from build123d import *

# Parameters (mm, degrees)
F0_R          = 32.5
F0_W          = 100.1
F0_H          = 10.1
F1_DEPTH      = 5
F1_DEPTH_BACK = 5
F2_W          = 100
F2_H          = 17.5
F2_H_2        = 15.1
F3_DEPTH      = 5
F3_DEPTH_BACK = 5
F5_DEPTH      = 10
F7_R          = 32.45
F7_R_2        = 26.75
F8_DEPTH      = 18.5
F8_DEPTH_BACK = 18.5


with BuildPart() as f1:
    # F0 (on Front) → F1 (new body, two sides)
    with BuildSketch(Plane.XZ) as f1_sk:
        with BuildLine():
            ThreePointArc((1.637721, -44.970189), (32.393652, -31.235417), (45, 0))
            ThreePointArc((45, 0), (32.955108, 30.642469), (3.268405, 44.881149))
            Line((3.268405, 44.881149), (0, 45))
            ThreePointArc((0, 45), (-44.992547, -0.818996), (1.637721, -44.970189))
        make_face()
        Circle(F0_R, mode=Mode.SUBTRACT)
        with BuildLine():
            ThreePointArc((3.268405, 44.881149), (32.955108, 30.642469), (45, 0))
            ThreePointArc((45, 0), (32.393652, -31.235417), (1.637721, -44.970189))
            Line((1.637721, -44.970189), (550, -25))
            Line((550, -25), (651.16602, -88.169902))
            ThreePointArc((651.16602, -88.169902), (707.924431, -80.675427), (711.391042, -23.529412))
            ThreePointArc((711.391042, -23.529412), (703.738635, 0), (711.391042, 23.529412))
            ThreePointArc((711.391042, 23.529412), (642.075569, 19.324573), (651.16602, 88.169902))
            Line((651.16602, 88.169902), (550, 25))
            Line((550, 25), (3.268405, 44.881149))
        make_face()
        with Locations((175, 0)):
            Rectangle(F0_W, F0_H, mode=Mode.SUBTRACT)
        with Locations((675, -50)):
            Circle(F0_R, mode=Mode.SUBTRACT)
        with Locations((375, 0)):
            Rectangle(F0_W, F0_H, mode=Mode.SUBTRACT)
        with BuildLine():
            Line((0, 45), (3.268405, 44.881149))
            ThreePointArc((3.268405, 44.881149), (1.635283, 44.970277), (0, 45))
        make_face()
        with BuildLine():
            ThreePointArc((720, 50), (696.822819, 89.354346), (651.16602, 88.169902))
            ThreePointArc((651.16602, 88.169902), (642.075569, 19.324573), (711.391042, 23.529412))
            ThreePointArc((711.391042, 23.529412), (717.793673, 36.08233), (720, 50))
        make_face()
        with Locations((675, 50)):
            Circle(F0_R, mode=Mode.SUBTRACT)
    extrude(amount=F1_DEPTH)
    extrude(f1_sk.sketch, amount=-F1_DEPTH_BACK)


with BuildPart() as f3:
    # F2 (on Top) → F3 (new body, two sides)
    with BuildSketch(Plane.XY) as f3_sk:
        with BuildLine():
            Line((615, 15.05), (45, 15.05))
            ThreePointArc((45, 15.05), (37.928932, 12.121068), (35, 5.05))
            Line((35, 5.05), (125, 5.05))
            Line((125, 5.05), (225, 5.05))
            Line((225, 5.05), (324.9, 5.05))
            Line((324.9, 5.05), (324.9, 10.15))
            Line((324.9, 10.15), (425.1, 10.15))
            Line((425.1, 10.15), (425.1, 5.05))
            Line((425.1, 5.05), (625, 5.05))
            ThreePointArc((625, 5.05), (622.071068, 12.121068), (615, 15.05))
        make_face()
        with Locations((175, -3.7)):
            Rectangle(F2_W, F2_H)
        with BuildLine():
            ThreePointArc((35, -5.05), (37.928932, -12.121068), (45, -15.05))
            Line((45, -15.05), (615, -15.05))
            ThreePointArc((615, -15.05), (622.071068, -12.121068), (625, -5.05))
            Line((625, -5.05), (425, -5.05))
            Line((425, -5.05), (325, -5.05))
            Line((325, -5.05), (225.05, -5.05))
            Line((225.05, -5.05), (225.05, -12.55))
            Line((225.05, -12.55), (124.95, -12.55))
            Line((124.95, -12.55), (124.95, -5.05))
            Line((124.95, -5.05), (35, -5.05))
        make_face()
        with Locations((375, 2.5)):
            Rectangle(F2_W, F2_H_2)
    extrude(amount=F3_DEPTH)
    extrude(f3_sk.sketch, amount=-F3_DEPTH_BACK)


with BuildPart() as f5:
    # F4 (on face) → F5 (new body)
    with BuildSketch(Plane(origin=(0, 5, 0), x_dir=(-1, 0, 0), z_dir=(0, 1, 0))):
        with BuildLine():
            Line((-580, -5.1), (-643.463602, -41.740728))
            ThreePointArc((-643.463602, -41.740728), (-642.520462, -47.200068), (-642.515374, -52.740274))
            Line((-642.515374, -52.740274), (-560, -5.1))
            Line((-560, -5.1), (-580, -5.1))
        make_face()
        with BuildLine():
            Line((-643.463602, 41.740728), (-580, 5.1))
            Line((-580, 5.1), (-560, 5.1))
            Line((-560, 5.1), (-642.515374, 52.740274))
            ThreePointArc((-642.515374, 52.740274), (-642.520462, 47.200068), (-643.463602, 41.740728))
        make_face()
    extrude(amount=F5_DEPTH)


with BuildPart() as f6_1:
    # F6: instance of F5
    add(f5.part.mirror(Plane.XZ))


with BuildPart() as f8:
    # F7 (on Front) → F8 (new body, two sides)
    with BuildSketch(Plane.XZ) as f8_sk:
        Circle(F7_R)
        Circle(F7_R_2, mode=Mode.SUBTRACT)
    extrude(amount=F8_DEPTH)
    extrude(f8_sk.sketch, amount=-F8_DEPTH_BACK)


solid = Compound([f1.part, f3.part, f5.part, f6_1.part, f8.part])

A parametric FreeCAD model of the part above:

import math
import FreeCAD as App
import Part
import Sketcher

V = App.Vector
Q = App.Units.Quantity


def add_polygon(sketch, points):
    """Adds a closed chain of lines whose ends are joined by coincident constraints."""
    first, n = sketch.GeometryCount, len(points)
    for a, b in zip(points, points[1:] + points[:1]):
        sketch.addGeometry(Part.LineSegment(App.Vector(*a, 0), App.Vector(*b, 0)), False)
    for i in range(n):
        sketch.addConstraint(Sketcher.Constraint("Coincident", first + i, 2, first + (i + 1) % n, 1))

doc = App.newDocument("Part")
body = doc.addObject("PartDesign::Body", "Body")

# Sketch on XZ plane
sketch1 = body.newObject("Sketcher::SketchObject", "Sketch")
sketch1.AttachmentSupport = (doc.getObject("XZ_Plane"), [""])
sketch1.MapMode = "FlatFace"
sketch1.addGeometry(Part.ArcOfCircle(Part.Circle(V(0, 0, 0), V(0, 0, 1), 45), math.radians(90), math.radians(272.085672)), False)  # 0
sketch1.addGeometry(Part.LineSegment(V(1.637721, -44.970189, 0), V(550, -25, 0)), False)  # 1
sketch1.addGeometry(Part.LineSegment(V(550, -25, 0), V(651.16602, -88.169902, 0)), False)  # 2
sketch1.addGeometry(Part.ArcOfCircle(Part.Circle(V(675, -50, 0), V(0, 0, 1), 45), math.radians(-121.981404), math.radians(36.031879)), False)  # 3
sketch1.addGeometry(Part.ArcOfCircle(Part.Circle(V(743.738635, 0, 0), V(0, 0, 1), 40), math.radians(143.968121), math.radians(216.031879)), False)  # 4
sketch1.addGeometry(Part.ArcOfCircle(Part.Circle(V(675.000001, 50, 0), V(0, 0, 1), 44.999999), math.radians(-36.03188), math.radians(0)), False)  # 5
sketch1.addGeometry(Part.ArcOfCircle(Part.Circle(V(675, 49.999999, 0), V(0, 0, 1), 45), math.radians(0.000001), math.radians(121.981403)), False)  # 6
sketch1.addGeometry(Part.LineSegment(V(651.16602, 88.169902, 0), V(550, 25, 0)), False)  # 7
sketch1.addGeometry(Part.LineSegment(V(550, 25, 0), V(3.268405, 44.881149, 0)), False)  # 8
sketch1.addGeometry(Part.ArcOfCircle(Part.Circle(V(-0.000023, -0.000663, 0), V(0, 0, 1), 45.000663), math.radians(85.834902), math.radians(89.999971)), False)  # 9
sketch1.addGeometry(Part.Circle(V(675, -50, 0), V(0, 0, 1), 32.5), False)  # 10
sketch1.addGeometry(Part.Circle(V(0, 0, 0), V(0, 0, 1), 32.5), False)  # 11
add_polygon(sketch1, [(225.05, -5.05), (124.95, -5.05), (124.95, 5.05), (225.05, 5.05)])  # lines 12-15
add_polygon(sketch1, [(425.05, -5.05), (324.95, -5.05), (324.95, 5.05), (425.05, 5.05)])  # lines 16-19
sketch1.addGeometry(Part.Circle(V(675, 50, 0), V(0, 0, 1), 32.5), False)  # 20
sketch1.addConstraint([
    Sketcher.Constraint("Coincident", 0, 2, 1, 1),
    Sketcher.Constraint("Coincident", 1, 2, 2, 1),
    Sketcher.Constraint("Coincident", 2, 2, 3, 1),
    Sketcher.Constraint("Coincident", 3, 2, 4, 2),
    Sketcher.Constraint("Coincident", 4, 1, 5, 1),
    Sketcher.Constraint("Coincident", 5, 2, 6, 1),
    Sketcher.Constraint("Coincident", 6, 2, 7, 1),
    Sketcher.Constraint("Coincident", 7, 2, 8, 1),
    Sketcher.Constraint("Coincident", 8, 2, 9, 1),
    Sketcher.Constraint("Coincident", 9, 2, 0, 1),
    Sketcher.Constraint("Horizontal", 12),
    Sketcher.Constraint("Vertical", 13),
    Sketcher.Constraint("Horizontal", 14),
    Sketcher.Constraint("Vertical", 15),
    Sketcher.Constraint("Horizontal", 16),
    Sketcher.Constraint("Vertical", 17),
    Sketcher.Constraint("Horizontal", 18),
    Sketcher.Constraint("Vertical", 19),
    Sketcher.Constraint("Coincident", 0, 3, -1, 1),
    Sketcher.Constraint("Coincident", 11, 3, -1, 1),
    Sketcher.Constraint("Coincident", 6, 3, 5, 3),
    Sketcher.Constraint("Coincident", 10, 3, 3, 3),
    Sketcher.Constraint("Coincident", 20, 3, 5, 3),
    Sketcher.Constraint("PointOnObject", 4, 3, -1),
    Sketcher.Constraint("PointOnObject", 9, 2, -2),
    Sketcher.Constraint("Diameter", 10, Q("65 mm")),
    Sketcher.Constraint("Diameter", 11, Q("65 mm")),
    Sketcher.Constraint("Diameter", 20, Q("65 mm")),
    Sketcher.Constraint("Radius", 0, Q("45 mm")),
    Sketcher.Constraint("Radius", 3, Q("45 mm")),
    Sketcher.Constraint("Radius", 4, Q("40 mm")),
    Sketcher.Constraint("Radius", 5, Q("44.999999 mm")),
    Sketcher.Constraint("DistanceX", 12, 2, 12, 1, Q("100.1 mm")),
    Sketcher.Constraint("DistanceX", 16, 2, 16, 1, Q("100.1 mm")),
    Sketcher.Constraint("DistanceY", 13, 1, 13, 2, Q("10.1 mm")),
    Sketcher.Constraint("DistanceY", 17, 1, 17, 2, Q("10.1 mm")),
    Sketcher.Constraint("DistanceX", -1, 1, 3, 3, Q("675 mm")),
    Sketcher.Constraint("DistanceY", 3, 3, -1, 1, Q("50 mm")),
    Sketcher.Constraint("DistanceX", -1, 1, 5, 3, Q("675.000001 mm")),
    Sketcher.Constraint("DistanceX", -1, 1, 1, 2, Q("550 mm")),
    Sketcher.Constraint("DistanceY", 1, 2, -1, 1, Q("25 mm")),
    Sketcher.Constraint("DistanceY", -1, 1, 5, 2, Q("50 mm")),
    Sketcher.Constraint("DistanceX", -1, 1, 7, 2, Q("550 mm")),
    Sketcher.Constraint("DistanceY", -1, 1, 7, 2, Q("25 mm")),
    Sketcher.Constraint("DistanceX", 12, 2, 16, 2, Q("200 mm")),
    Sketcher.Constraint("DistanceY", 16, 2, 14, 2, Q("10.1 mm")),
    Sketcher.Constraint("DistanceX", -1, 1, 12, 2, Q("124.95 mm")),
    Sketcher.Constraint("DistanceY", 12, 2, -1, 1, Q("5.05 mm")),
    Sketcher.Constraint("Radius", 9, Q("45.000663 mm")),
    Sketcher.Constraint("DistanceY", 2, 2, -1, 1, Q("88.169902 mm")),
    Sketcher.Constraint("DistanceY", -1, 1, 6, 2, Q("88.169902 mm")),
    Sketcher.Constraint("Distance", 8, Q("547.092951 mm")),
    Sketcher.Constraint("DistanceX", -1, 1, 0, 2, Q("1.637721 mm")),
    Sketcher.Constraint("DistanceX", -1, 1, 3, 2, Q("711.391042 mm")),
    Sketcher.Constraint("DistanceY", -1, 1, 4, 1, Q("23.529412 mm")),
    Sketcher.Constraint("DistanceY", -1, 1, 8, 2, Q("44.881149 mm")),
])
pad1 = body.newObject("PartDesign::Pad", "Pad")
pad1.Profile = sketch1
pad1.Type = "TwoLengths"
pad1.Length = 5
pad1.Length2 = 5
body2 = doc.addObject("PartDesign::Body", "Body001")
body2.AllowCompound = True

# Sketch on XY plane
sketch2 = body2.newObject("Sketcher::SketchObject", "Sketch001")
sketch2.AttachmentSupport = (doc.getObject("XY_Plane001"), [""])
sketch2.MapMode = "FlatFace"
sketch2.addGeometry([
    Part.LineSegment(V(615, 15, 0), V(45, 15, 0)),  # 0
    Part.ArcOfCircle(Part.Circle(V(45, 5, 0), V(0, 0, 1), 10), math.radians(90), math.radians(180)),  # 1
    Part.LineSegment(V(35, 5, 0), V(125, 5, 0)),  # 2
    Part.LineSegment(V(125, 5, 0), V(125, -12, 0)),  # 3
    Part.LineSegment(V(125, -12, 0), V(225, -12, 0)),  # 4
    Part.LineSegment(V(225, -12, 0), V(225, 5, 0)),  # 5
    Part.LineSegment(V(225, 5, 0), V(325, 5, 0)),  # 6
    Part.LineSegment(V(325, 5, 0), V(325, 10, 0)),  # 7
    Part.LineSegment(V(325, 10, 0), V(425, 10, 0)),  # 8
    Part.LineSegment(V(425, 10, 0), V(425, 5, 0)),  # 9
    Part.LineSegment(V(425, 5, 0), V(625, 5, 0)),  # 10
    Part.ArcOfCircle(Part.Circle(V(615, 5, 0), V(0, 0, 1), 10), math.radians(0), math.radians(90)),  # 11
    Part.ArcOfCircle(Part.Circle(V(45, -5, 0), V(0, 0, 1), 10), math.radians(180), math.radians(270)),  # 12
    Part.LineSegment(V(45, -15, 0), V(615, -15, 0)),  # 13
    Part.ArcOfCircle(Part.Circle(V(615, -5, 0), V(0, 0, 1), 10), math.radians(-90), math.radians(0)),  # 14
    Part.LineSegment(V(625, -5, 0), V(425, -5, 0)),  # 15
    Part.LineSegment(V(425, -5, 0), V(425, 10, 0)),  # 16
    Part.LineSegment(V(425, 10, 0), V(325, 10, 0)),  # 17
    Part.LineSegment(V(325, 10, 0), V(325, -5, 0)),  # 18
    Part.LineSegment(V(325, -5, 0), V(225, -5, 0)),  # 19
    Part.LineSegment(V(225, -5, 0), V(225, -13, 0)),  # 20
    Part.LineSegment(V(225, -13, 0), V(125, -13, 0)),  # 21
    Part.LineSegment(V(125, -13, 0), V(125, -5, 0)),  # 22
    Part.LineSegment(V(125, -5, 0), V(35, -5, 0)),  # 23
], False)
sketch2.addConstraint([
    Sketcher.Constraint("Tangent", 0, 2, 1, 1),
    Sketcher.Constraint("Coincident", 1, 2, 2, 1),
    Sketcher.Constraint("Coincident", 2, 2, 3, 1),
    Sketcher.Constraint("Coincident", 3, 2, 4, 1),
    Sketcher.Constraint("Coincident", 4, 2, 5, 1),
    Sketcher.Constraint("Coincident", 5, 2, 6, 1),
    Sketcher.Constraint("Coincident", 6, 2, 7, 1),
    Sketcher.Constraint("Coincident", 7, 2, 8, 1),
    Sketcher.Constraint("Coincident", 8, 2, 9, 1),
    Sketcher.Constraint("Coincident", 9, 2, 10, 1),
    Sketcher.Constraint("Coincident", 10, 2, 11, 1),
    Sketcher.Constraint("Tangent", 11, 2, 0, 1),
    Sketcher.Constraint("Tangent", 12, 2, 13, 1),
    Sketcher.Constraint("Tangent", 13, 2, 14, 1),
    Sketcher.Constraint("Coincident", 14, 2, 15, 1),
    Sketcher.Constraint("Coincident", 15, 2, 16, 1),
    Sketcher.Constraint("Coincident", 16, 2, 17, 1),
    Sketcher.Constraint("Coincident", 17, 2, 18, 1),
    Sketcher.Constraint("Coincident", 18, 2, 19, 1),
    Sketcher.Constraint("Coincident", 19, 2, 20, 1),
    Sketcher.Constraint("Coincident", 20, 2, 21, 1),
    Sketcher.Constraint("Coincident", 21, 2, 22, 1),
    Sketcher.Constraint("Coincident", 22, 2, 23, 1),
    Sketcher.Constraint("Coincident", 23, 2, 12, 1),
    Sketcher.Constraint("Horizontal", 0),
    Sketcher.Constraint("Horizontal", 2),
    Sketcher.Constraint("Vertical", 3),
    Sketcher.Constraint("Horizontal", 4),
    Sketcher.Constraint("Vertical", 5),
    Sketcher.Constraint("Horizontal", 6),
    Sketcher.Constraint("Vertical", 7),
    Sketcher.Constraint("Horizontal", 8),
    Sketcher.Constraint("Vertical", 9),
    Sketcher.Constraint("Horizontal", 10),
    Sketcher.Constraint("Horizontal", 13),
    Sketcher.Constraint("Horizontal", 15),
    Sketcher.Constraint("Vertical", 16),
    Sketcher.Constraint("Horizontal", 17),
    Sketcher.Constraint("Vertical", 18),
    Sketcher.Constraint("Horizontal", 19),
    Sketcher.Constraint("Vertical", 20),
    Sketcher.Constraint("Horizontal", 21),
    Sketcher.Constraint("Vertical", 22),
    Sketcher.Constraint("Horizontal", 23),
    Sketcher.Constraint("Equal", 1, 11),
    Sketcher.Constraint("Equal", 11, 12),
    Sketcher.Constraint("Equal", 12, 14),
    Sketcher.Constraint("Symmetric", 1, 3, 12, 3, -1),
    Sketcher.Constraint("Symmetric", 10, 2, 14, 2, -1),
    Sketcher.Constraint("Horizontal", 11, 3, 1, 2),
    Sketcher.Constraint("Horizontal", 2, 2, 5, 2),
    Sketcher.Constraint("Horizontal", 6, 2, 9, 2),
    Sketcher.Constraint("Horizontal", 15, 2, 18, 2),
    Sketcher.Constraint("Horizontal", 19, 2, 22, 2),
    Sketcher.Constraint("Equal", 4, 17),
    Sketcher.Constraint("Radius", 1, Q("9.999999 mm")),
    Sketcher.Constraint("DistanceX", 0, 2, 0, 1, Q("570 mm")),
    Sketcher.Constraint("DistanceX", 2, 1, 2, 2, Q("90 mm")),
    Sketcher.Constraint("DistanceX", 4, 1, 4, 2, Q("100 mm")),
    Sketcher.Constraint("DistanceX", 15, 2, 15, 1, Q("200 mm")),
    Sketcher.Constraint("DistanceX", 6, 1, 6, 2, Q("99.9 mm")),
    Sketcher.Constraint("DistanceX", 8, 1, 8, 2, Q("100.2 mm")),
    Sketcher.Constraint("DistanceX", 21, 2, 21, 1, Q("100.1 mm")),
    Sketcher.Constraint("DistanceY", 3, 2, 3, 1, Q("17.5 mm")),
    Sketcher.Constraint("DistanceY", 7, 1, 7, 2, Q("5.1 mm")),
    Sketcher.Constraint("DistanceY", 16, 1, 16, 2, Q("15.1 mm")),
    Sketcher.Constraint("DistanceY", 20, 2, 20, 1, Q("7.5 mm")),
    Sketcher.Constraint("DistanceX", -1, 1, 1, 3, Q("44.999999 mm")),
    Sketcher.Constraint("DistanceY", 9, 2, 16, 2, Q("5 mm")),
    Sketcher.Constraint("DistanceX", 19, 2, 19, 1, Q("99.95 mm")),
])
pad2 = body2.newObject("PartDesign::Pad", "Pad001")
pad2.Profile = sketch2
pad2.Type = "TwoLengths"
pad2.Length = 5
pad2.Length2 = 5
body3 = doc.addObject("PartDesign::Body", "Body002")
body3.AllowCompound = True

# Sketch on XZ plane
sketch3 = body3.newObject("Sketcher::SketchObject", "Sketch002")
sketch3.AttachmentSupport = (doc.getObject("XZ_Plane002"), [""])
sketch3.MapMode = "FlatFace"
sketch3.AttachmentOffset = App.Placement(V(0, 0, -5), App.Rotation())
sketch3.addGeometry([
    Part.LineSegment(V(580, -5, 0), V(643, -42, 0)),  # 0
    Part.ArcOfCircle(Part.Circle(V(675, -50, 0), V(0, 0, 1), 33), math.radians(165.32), math.radians(184.82)),  # 1
    Part.LineSegment(V(643, -53, 0), V(560, -5, 0)),  # 2
    Part.LineSegment(V(560, -5, 0), V(580, -5, 0)),  # 3
    Part.LineSegment(V(643, 42, 0), V(580, 5, 0)),  # 4
    Part.LineSegment(V(580, 5, 0), V(560, 5, 0)),  # 5
    Part.LineSegment(V(560, 5, 0), V(643, 53, 0)),  # 6
    Part.ArcOfCircle(Part.Circle(V(675, 50, 0), V(0, 0, 1), 33), math.radians(175.18), math.radians(194.68)),  # 7
], False)
sketch3.addConstraint([
    Sketcher.Constraint("Coincident", 0, 2, 1, 1),
    Sketcher.Constraint("Coincident", 1, 2, 2, 1),
    Sketcher.Constraint("Coincident", 2, 2, 3, 1),
    Sketcher.Constraint("Coincident", 3, 2, 0, 1),
    Sketcher.Constraint("Coincident", 4, 2, 5, 1),
    Sketcher.Constraint("Coincident", 5, 2, 6, 1),
    Sketcher.Constraint("Coincident", 6, 2, 7, 1),
    Sketcher.Constraint("Coincident", 7, 2, 4, 1),
    Sketcher.Constraint("Horizontal", 3),
    Sketcher.Constraint("Horizontal", 5),
    Sketcher.Constraint("Equal", 1, 7),
    Sketcher.Constraint("Symmetric", 1, 3, 7, 3, -1),
    Sketcher.Constraint("Symmetric", 3, 2, 4, 2, -1),
    Sketcher.Constraint("Parallel", 0, 2),
    Sketcher.Constraint("Parallel", 4, 6),
    Sketcher.Constraint("Vertical", 2, 2, 5, 2),
    Sketcher.Constraint("Vertical", 1, 2, 6, 2),
    Sketcher.Constraint("DistanceX", 3, 1, 3, 2, Q("20 mm")),
    Sketcher.Constraint("Angle", 0, Q("-30 deg")),
    Sketcher.Constraint("DistanceY", 1, 3, -1, 1, Q("50.000002 mm")),
    Sketcher.Constraint("DistanceX", -1, 1, 2, 2, Q("560 mm")),
    Sketcher.Constraint("DistanceY", 2, 2, -1, 1, Q("5.1 mm")),
    Sketcher.Constraint("Radius", 1, Q("32.599992 mm")),
    Sketcher.Constraint("DistanceY", 0, 2, 6, 2, Q("94.481002 mm")),
])
pad3 = body3.newObject("PartDesign::Pad", "Pad002")
pad3.Profile = sketch3
pad3.Length = 10
pad3.Reversed = True
body4 = doc.addObject("PartDesign::Body", "Body003")
body4.AllowCompound = True
doc.recompute()

mirroring = doc.addObject("Part::Mirroring", "Mirroring")
mirroring.Source = body3
mirroring.Base = V(0, 0, 0)
mirroring.Normal = V(0, -1, 0)
body4.BaseFeature = mirroring
doc.recompute()
body5 = doc.addObject("PartDesign::Body", "Body004")

# Sketch on XZ plane
sketch4 = body5.newObject("Sketcher::SketchObject", "Sketch003")
sketch4.AttachmentSupport = (doc.getObject("XZ_Plane004"), [""])
sketch4.MapMode = "FlatFace"
sketch4.addGeometry([
    Part.Circle(V(0, 0, 0), V(0, 0, 1), 32),
    Part.Circle(V(0, 0, 0), V(0, 0, 1), 27),
], False)
sketch4.addConstraint([
    Sketcher.Constraint("Coincident", 0, 3, -1, 1),
    Sketcher.Constraint("Coincident", 1, 3, -1, 1),
    Sketcher.Constraint("Diameter", 0, Q("64.9 mm")),
    Sketcher.Constraint("Diameter", 1, Q("53.5 mm")),
])
pad4 = body5.newObject("PartDesign::Pad", "Pad003")
pad4.Profile = sketch4
pad4.Type = "TwoLengths"
pad4.Length = 18.5
pad4.Length2 = 18.5
mirroring.Visibility = False

doc.recompute()
